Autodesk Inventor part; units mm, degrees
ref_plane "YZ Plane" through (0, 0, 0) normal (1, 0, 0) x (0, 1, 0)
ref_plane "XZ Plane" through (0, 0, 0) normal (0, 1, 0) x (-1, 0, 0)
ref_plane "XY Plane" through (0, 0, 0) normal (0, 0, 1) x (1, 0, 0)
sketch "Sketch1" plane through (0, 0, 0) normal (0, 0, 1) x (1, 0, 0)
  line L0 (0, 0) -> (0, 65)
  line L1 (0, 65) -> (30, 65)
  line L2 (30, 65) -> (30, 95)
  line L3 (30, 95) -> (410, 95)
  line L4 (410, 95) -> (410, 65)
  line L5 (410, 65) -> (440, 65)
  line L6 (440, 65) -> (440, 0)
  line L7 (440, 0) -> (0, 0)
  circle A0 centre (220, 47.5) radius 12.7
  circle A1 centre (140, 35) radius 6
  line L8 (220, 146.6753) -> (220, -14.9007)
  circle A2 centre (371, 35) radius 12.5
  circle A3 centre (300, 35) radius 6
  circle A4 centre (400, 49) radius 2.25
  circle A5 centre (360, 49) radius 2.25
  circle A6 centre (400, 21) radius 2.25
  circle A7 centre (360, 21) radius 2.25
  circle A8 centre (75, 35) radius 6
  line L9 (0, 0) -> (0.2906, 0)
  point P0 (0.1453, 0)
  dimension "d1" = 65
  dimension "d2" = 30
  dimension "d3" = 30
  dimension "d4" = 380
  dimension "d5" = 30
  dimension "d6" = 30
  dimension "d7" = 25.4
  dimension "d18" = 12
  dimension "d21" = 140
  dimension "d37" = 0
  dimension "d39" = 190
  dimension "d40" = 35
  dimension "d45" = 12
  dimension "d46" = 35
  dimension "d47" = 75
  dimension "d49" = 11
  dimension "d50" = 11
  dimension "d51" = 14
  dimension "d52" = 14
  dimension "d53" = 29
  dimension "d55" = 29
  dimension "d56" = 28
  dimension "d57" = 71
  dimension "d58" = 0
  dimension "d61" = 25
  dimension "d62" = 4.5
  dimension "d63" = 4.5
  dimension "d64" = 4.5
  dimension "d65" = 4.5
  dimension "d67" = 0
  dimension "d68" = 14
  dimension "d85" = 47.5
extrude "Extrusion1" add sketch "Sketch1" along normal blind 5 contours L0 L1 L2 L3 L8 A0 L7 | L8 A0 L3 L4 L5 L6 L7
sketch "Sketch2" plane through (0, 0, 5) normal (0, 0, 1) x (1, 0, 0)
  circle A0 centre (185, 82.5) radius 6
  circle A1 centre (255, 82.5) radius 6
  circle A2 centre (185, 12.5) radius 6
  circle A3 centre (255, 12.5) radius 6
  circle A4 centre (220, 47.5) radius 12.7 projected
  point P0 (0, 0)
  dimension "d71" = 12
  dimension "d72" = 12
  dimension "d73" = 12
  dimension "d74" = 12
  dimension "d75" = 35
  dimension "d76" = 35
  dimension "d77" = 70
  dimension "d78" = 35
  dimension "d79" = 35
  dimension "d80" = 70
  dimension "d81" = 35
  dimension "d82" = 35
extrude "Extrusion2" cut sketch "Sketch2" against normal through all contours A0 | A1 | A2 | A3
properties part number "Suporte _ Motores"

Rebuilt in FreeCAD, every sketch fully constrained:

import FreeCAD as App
import Part
import Sketcher
from FreeCAD import Vector

doc = App.newDocument("Part")
body = doc.addObject("PartDesign::Body", "Body")

sketch1 = doc.addObject("Sketcher::SketchObject", "Sketch")
body.addObject(sketch1)
sketch1.AttachmentSupport = (doc.XY_Plane, [""])
sketch1.MapMode = "FlatFace"
sketch1.addGeometry(Part.LineSegment(Vector(0, 65, 0), Vector(0, 0, 0)), False)
sketch1.addGeometry(Part.LineSegment(Vector(0, 0, 0), Vector(440, 0, 0)), False)
sketch1.addGeometry(Part.LineSegment(Vector(440, 0, 0), Vector(440, 65, 0)), False)
sketch1.addGeometry(Part.LineSegment(Vector(440, 65, 0), Vector(410, 65, 0)), False)
sketch1.addGeometry(Part.LineSegment(Vector(410, 65, 0), Vector(410, 95, 0)), False)
sketch1.addGeometry(Part.LineSegment(Vector(410, 95, 0), Vector(30, 95, 0)), False)
sketch1.addGeometry(Part.LineSegment(Vector(30, 95, 0), Vector(30, 65, 0)), False)
sketch1.addGeometry(Part.LineSegment(Vector(30, 65, 0), Vector(0, 65, 0)), False)
sketch1.addGeometry(Part.Circle(Vector(220, 47.5, 0), Vector(0, 0, 1), 12.7), False)
sketch1.addGeometry(Part.Circle(Vector(75, 35, 0), Vector(0, 0, 1), 6), False)
sketch1.addGeometry(Part.Circle(Vector(140, 35, 0), Vector(0, 0, 1), 6), False)
sketch1.addGeometry(Part.Circle(Vector(360, 49, 0), Vector(0, 0, 1), 2.2), False)
sketch1.addGeometry(Part.Circle(Vector(400, 49, 0), Vector(0, 0, 1), 2.2), False)
sketch1.addGeometry(Part.Circle(Vector(360, 21, 0), Vector(0, 0, 1), 2.2), False)
sketch1.addGeometry(Part.Circle(Vector(400, 21, 0), Vector(0, 0, 1), 2.2), False)
sketch1.addGeometry(Part.Circle(Vector(300, 35, 0), Vector(0, 0, 1), 6), False)
sketch1.addGeometry(Part.Circle(Vector(371, 35, 0), Vector(0, 0, 1), 12.5), False)
sketch1.addConstraint(Sketcher.Constraint("Coincident", 0, 2, 1, 1))
sketch1.addConstraint(Sketcher.Constraint("Coincident", 1, 2, 2, 1))
sketch1.addConstraint(Sketcher.Constraint("Coincident", 2, 2, 3, 1))
sketch1.addConstraint(Sketcher.Constraint("Coincident", 3, 2, 4, 1))
sketch1.addConstraint(Sketcher.Constraint("Coincident", 4, 2, 5, 1))
sketch1.addConstraint(Sketcher.Constraint("Coincident", 5, 2, 6, 1))
sketch1.addConstraint(Sketcher.Constraint("Coincident", 6, 2, 7, 1))
sketch1.addConstraint(Sketcher.Constraint("Coincident", 7, 2, 0, 1))
sketch1.addConstraint(Sketcher.Constraint("Vertical", 0))
sketch1.addConstraint(Sketcher.Constraint("Horizontal", 1))
sketch1.addConstraint(Sketcher.Constraint("Vertical", 2))
sketch1.addConstraint(Sketcher.Constraint("Horizontal", 3))
sketch1.addConstraint(Sketcher.Constraint("Vertical", 4))
sketch1.addConstraint(Sketcher.Constraint("Horizontal", 5))
sketch1.addConstraint(Sketcher.Constraint("Vertical", 6))
sketch1.addConstraint(Sketcher.Constraint("Horizontal", 7))
sketch1.addConstraint(Sketcher.Constraint("Coincident", 0, 2, -1, 1))
sketch1.addConstraint(Sketcher.Constraint("Equal", 9, 10))
sketch1.addConstraint(Sketcher.Constraint("Equal", 11, 12))
sketch1.addConstraint(Sketcher.Constraint("Equal", 12, 13))
sketch1.addConstraint(Sketcher.Constraint("Equal", 13, 14))
sketch1.addConstraint(Sketcher.Constraint("Equal", 10, 15))
sketch1.addConstraint(Sketcher.Constraint("Horizontal", 9, 3, 10, 3))
sketch1.addConstraint(Sketcher.Constraint("Horizontal", 11, 3, 12, 3))
sketch1.addConstraint(Sketcher.Constraint("Horizontal", 13, 3, 14, 3))
sketch1.addConstraint(Sketcher.Constraint("Horizontal", 10, 3, 15, 3))
sketch1.addConstraint(Sketcher.Constraint("Horizontal", 15, 3, 16, 3))
sketch1.addConstraint(Sketcher.Constraint("Horizontal", 3, 2, 6, 2))
sketch1.addConstraint(Sketcher.Constraint("Vertical", 11, 3, 13, 3))
sketch1.addConstraint(Sketcher.Constraint("Vertical", 12, 3, 14, 3))
sketch1.addConstraint(Sketcher.Constraint("Equal", 3, 7))
sketch1.addConstraint(Sketcher.Constraint("Equal", 7, 4))
sketch1.addConstraint(Sketcher.Constraint("Diameter", 9, 12.0))
sketch1.addConstraint(Sketcher.Constraint("Diameter", 16, 25.0))
sketch1.addConstraint(Sketcher.Constraint("Diameter", 8, 25.4))
sketch1.addConstraint(Sketcher.Constraint("Diameter", 11, 4.5))
sketch1.addConstraint(Sketcher.Constraint("DistanceX", 3, 2, 3, 1, 30.0))
sketch1.addConstraint(Sketcher.Constraint("DistanceX", 5, 2, 5, 1, 380.0))
sketch1.addConstraint(Sketcher.Constraint("DistanceY", 0, 2, 0, 1, 65.0))
sketch1.addConstraint(Sketcher.Constraint("DistanceX", -1, 1, 9, 3, 75.0))
sketch1.addConstraint(Sketcher.Constraint("DistanceY", -1, 1, 9, 3, 35.0))
sketch1.addConstraint(Sketcher.Constraint("DistanceX", -1, 1, 10, 3, 140.0))
sketch1.addConstraint(Sketcher.Constraint("DistanceX", 8, 3, 11, 3, 140.0))
sketch1.addConstraint(Sketcher.Constraint("DistanceY", 10, 3, 11, 3, 14.0))
sketch1.addConstraint(Sketcher.Constraint("DistanceY", 13, 3, 11, 3, 28.0))
sketch1.addConstraint(Sketcher.Constraint("DistanceX", 11, 3, 16, 3, 11.0))
sketch1.addConstraint(Sketcher.Constraint("DistanceX", 16, 3, 12, 3, 29.0))
sketch1.addConstraint(Sketcher.Constraint("DistanceX", 15, 3, 16, 3, 71.0))
sketch1.addConstraint(Sketcher.Constraint("DistanceX", 5, 2, 8, 3, 190.0))
sketch1.addConstraint(Sketcher.Constraint("DistanceY", -1, 1, 8, 3, 47.5))
pad1 = doc.addObject("PartDesign::Pad", "Pad")
body.addObject(pad1)
pad1.Profile = sketch1
pad1.Length = 5

sketch2 = doc.addObject("Sketcher::SketchObject", "Sketch001")
body.addObject(sketch2)
sketch2.AttachmentSupport = (doc.XY_Plane, [""])
sketch2.MapMode = "FlatFace"
sketch2.AttachmentOffset = App.Placement(Vector(0, 0, 5), App.Rotation())
sketch2.addGeometry(Part.Circle(Vector(185, 82, 0), Vector(0, 0, 1), 6), False)
sketch2.addGeometry(Part.Circle(Vector(255, 82, 0), Vector(0, 0, 1), 6), False)
sketch2.addGeometry(Part.Circle(Vector(185, 12, 0), Vector(0, 0, 1), 6), False)
sketch2.addGeometry(Part.Circle(Vector(255, 12, 0), Vector(0, 0, 1), 6), False)
sketch2.addConstraint(Sketcher.Constraint("Equal", 0, 1))
sketch2.addConstraint(Sketcher.Constraint("Equal", 1, 2))
sketch2.addConstraint(Sketcher.Constraint("Equal", 2, 3))
sketch2.addConstraint(Sketcher.Constraint("Horizontal", 0, 3, 1, 3))
sketch2.addConstraint(Sketcher.Constraint("Horizontal", 2, 3, 3, 3))
sketch2.addConstraint(Sketcher.Constraint("Vertical", 0, 3, 2, 3))
sketch2.addConstraint(Sketcher.Constraint("Vertical", 1, 3, 3, 3))
sketch2.addConstraint(Sketcher.Constraint("Diameter", 0, 12.0))
sketch2.addConstraint(Sketcher.Constraint("DistanceX", 0, 3, 1, 3, 70.0))
sketch2.addConstraint(Sketcher.Constraint("DistanceY", 2, 3, 0, 3, 70.0))
sketch2.addConstraint(Sketcher.Constraint("DistanceX", -1, 1, 0, 3, 185.0))
sketch2.addConstraint(Sketcher.Constraint("DistanceY", -1, 1, 0, 3, 82.5))
pocket1 = doc.addObject("PartDesign::Pocket", "Pocket")
body.addObject(pocket1)
pocket1.Profile = sketch2
pocket1.Type = "ThroughAll"

doc.recompute()
